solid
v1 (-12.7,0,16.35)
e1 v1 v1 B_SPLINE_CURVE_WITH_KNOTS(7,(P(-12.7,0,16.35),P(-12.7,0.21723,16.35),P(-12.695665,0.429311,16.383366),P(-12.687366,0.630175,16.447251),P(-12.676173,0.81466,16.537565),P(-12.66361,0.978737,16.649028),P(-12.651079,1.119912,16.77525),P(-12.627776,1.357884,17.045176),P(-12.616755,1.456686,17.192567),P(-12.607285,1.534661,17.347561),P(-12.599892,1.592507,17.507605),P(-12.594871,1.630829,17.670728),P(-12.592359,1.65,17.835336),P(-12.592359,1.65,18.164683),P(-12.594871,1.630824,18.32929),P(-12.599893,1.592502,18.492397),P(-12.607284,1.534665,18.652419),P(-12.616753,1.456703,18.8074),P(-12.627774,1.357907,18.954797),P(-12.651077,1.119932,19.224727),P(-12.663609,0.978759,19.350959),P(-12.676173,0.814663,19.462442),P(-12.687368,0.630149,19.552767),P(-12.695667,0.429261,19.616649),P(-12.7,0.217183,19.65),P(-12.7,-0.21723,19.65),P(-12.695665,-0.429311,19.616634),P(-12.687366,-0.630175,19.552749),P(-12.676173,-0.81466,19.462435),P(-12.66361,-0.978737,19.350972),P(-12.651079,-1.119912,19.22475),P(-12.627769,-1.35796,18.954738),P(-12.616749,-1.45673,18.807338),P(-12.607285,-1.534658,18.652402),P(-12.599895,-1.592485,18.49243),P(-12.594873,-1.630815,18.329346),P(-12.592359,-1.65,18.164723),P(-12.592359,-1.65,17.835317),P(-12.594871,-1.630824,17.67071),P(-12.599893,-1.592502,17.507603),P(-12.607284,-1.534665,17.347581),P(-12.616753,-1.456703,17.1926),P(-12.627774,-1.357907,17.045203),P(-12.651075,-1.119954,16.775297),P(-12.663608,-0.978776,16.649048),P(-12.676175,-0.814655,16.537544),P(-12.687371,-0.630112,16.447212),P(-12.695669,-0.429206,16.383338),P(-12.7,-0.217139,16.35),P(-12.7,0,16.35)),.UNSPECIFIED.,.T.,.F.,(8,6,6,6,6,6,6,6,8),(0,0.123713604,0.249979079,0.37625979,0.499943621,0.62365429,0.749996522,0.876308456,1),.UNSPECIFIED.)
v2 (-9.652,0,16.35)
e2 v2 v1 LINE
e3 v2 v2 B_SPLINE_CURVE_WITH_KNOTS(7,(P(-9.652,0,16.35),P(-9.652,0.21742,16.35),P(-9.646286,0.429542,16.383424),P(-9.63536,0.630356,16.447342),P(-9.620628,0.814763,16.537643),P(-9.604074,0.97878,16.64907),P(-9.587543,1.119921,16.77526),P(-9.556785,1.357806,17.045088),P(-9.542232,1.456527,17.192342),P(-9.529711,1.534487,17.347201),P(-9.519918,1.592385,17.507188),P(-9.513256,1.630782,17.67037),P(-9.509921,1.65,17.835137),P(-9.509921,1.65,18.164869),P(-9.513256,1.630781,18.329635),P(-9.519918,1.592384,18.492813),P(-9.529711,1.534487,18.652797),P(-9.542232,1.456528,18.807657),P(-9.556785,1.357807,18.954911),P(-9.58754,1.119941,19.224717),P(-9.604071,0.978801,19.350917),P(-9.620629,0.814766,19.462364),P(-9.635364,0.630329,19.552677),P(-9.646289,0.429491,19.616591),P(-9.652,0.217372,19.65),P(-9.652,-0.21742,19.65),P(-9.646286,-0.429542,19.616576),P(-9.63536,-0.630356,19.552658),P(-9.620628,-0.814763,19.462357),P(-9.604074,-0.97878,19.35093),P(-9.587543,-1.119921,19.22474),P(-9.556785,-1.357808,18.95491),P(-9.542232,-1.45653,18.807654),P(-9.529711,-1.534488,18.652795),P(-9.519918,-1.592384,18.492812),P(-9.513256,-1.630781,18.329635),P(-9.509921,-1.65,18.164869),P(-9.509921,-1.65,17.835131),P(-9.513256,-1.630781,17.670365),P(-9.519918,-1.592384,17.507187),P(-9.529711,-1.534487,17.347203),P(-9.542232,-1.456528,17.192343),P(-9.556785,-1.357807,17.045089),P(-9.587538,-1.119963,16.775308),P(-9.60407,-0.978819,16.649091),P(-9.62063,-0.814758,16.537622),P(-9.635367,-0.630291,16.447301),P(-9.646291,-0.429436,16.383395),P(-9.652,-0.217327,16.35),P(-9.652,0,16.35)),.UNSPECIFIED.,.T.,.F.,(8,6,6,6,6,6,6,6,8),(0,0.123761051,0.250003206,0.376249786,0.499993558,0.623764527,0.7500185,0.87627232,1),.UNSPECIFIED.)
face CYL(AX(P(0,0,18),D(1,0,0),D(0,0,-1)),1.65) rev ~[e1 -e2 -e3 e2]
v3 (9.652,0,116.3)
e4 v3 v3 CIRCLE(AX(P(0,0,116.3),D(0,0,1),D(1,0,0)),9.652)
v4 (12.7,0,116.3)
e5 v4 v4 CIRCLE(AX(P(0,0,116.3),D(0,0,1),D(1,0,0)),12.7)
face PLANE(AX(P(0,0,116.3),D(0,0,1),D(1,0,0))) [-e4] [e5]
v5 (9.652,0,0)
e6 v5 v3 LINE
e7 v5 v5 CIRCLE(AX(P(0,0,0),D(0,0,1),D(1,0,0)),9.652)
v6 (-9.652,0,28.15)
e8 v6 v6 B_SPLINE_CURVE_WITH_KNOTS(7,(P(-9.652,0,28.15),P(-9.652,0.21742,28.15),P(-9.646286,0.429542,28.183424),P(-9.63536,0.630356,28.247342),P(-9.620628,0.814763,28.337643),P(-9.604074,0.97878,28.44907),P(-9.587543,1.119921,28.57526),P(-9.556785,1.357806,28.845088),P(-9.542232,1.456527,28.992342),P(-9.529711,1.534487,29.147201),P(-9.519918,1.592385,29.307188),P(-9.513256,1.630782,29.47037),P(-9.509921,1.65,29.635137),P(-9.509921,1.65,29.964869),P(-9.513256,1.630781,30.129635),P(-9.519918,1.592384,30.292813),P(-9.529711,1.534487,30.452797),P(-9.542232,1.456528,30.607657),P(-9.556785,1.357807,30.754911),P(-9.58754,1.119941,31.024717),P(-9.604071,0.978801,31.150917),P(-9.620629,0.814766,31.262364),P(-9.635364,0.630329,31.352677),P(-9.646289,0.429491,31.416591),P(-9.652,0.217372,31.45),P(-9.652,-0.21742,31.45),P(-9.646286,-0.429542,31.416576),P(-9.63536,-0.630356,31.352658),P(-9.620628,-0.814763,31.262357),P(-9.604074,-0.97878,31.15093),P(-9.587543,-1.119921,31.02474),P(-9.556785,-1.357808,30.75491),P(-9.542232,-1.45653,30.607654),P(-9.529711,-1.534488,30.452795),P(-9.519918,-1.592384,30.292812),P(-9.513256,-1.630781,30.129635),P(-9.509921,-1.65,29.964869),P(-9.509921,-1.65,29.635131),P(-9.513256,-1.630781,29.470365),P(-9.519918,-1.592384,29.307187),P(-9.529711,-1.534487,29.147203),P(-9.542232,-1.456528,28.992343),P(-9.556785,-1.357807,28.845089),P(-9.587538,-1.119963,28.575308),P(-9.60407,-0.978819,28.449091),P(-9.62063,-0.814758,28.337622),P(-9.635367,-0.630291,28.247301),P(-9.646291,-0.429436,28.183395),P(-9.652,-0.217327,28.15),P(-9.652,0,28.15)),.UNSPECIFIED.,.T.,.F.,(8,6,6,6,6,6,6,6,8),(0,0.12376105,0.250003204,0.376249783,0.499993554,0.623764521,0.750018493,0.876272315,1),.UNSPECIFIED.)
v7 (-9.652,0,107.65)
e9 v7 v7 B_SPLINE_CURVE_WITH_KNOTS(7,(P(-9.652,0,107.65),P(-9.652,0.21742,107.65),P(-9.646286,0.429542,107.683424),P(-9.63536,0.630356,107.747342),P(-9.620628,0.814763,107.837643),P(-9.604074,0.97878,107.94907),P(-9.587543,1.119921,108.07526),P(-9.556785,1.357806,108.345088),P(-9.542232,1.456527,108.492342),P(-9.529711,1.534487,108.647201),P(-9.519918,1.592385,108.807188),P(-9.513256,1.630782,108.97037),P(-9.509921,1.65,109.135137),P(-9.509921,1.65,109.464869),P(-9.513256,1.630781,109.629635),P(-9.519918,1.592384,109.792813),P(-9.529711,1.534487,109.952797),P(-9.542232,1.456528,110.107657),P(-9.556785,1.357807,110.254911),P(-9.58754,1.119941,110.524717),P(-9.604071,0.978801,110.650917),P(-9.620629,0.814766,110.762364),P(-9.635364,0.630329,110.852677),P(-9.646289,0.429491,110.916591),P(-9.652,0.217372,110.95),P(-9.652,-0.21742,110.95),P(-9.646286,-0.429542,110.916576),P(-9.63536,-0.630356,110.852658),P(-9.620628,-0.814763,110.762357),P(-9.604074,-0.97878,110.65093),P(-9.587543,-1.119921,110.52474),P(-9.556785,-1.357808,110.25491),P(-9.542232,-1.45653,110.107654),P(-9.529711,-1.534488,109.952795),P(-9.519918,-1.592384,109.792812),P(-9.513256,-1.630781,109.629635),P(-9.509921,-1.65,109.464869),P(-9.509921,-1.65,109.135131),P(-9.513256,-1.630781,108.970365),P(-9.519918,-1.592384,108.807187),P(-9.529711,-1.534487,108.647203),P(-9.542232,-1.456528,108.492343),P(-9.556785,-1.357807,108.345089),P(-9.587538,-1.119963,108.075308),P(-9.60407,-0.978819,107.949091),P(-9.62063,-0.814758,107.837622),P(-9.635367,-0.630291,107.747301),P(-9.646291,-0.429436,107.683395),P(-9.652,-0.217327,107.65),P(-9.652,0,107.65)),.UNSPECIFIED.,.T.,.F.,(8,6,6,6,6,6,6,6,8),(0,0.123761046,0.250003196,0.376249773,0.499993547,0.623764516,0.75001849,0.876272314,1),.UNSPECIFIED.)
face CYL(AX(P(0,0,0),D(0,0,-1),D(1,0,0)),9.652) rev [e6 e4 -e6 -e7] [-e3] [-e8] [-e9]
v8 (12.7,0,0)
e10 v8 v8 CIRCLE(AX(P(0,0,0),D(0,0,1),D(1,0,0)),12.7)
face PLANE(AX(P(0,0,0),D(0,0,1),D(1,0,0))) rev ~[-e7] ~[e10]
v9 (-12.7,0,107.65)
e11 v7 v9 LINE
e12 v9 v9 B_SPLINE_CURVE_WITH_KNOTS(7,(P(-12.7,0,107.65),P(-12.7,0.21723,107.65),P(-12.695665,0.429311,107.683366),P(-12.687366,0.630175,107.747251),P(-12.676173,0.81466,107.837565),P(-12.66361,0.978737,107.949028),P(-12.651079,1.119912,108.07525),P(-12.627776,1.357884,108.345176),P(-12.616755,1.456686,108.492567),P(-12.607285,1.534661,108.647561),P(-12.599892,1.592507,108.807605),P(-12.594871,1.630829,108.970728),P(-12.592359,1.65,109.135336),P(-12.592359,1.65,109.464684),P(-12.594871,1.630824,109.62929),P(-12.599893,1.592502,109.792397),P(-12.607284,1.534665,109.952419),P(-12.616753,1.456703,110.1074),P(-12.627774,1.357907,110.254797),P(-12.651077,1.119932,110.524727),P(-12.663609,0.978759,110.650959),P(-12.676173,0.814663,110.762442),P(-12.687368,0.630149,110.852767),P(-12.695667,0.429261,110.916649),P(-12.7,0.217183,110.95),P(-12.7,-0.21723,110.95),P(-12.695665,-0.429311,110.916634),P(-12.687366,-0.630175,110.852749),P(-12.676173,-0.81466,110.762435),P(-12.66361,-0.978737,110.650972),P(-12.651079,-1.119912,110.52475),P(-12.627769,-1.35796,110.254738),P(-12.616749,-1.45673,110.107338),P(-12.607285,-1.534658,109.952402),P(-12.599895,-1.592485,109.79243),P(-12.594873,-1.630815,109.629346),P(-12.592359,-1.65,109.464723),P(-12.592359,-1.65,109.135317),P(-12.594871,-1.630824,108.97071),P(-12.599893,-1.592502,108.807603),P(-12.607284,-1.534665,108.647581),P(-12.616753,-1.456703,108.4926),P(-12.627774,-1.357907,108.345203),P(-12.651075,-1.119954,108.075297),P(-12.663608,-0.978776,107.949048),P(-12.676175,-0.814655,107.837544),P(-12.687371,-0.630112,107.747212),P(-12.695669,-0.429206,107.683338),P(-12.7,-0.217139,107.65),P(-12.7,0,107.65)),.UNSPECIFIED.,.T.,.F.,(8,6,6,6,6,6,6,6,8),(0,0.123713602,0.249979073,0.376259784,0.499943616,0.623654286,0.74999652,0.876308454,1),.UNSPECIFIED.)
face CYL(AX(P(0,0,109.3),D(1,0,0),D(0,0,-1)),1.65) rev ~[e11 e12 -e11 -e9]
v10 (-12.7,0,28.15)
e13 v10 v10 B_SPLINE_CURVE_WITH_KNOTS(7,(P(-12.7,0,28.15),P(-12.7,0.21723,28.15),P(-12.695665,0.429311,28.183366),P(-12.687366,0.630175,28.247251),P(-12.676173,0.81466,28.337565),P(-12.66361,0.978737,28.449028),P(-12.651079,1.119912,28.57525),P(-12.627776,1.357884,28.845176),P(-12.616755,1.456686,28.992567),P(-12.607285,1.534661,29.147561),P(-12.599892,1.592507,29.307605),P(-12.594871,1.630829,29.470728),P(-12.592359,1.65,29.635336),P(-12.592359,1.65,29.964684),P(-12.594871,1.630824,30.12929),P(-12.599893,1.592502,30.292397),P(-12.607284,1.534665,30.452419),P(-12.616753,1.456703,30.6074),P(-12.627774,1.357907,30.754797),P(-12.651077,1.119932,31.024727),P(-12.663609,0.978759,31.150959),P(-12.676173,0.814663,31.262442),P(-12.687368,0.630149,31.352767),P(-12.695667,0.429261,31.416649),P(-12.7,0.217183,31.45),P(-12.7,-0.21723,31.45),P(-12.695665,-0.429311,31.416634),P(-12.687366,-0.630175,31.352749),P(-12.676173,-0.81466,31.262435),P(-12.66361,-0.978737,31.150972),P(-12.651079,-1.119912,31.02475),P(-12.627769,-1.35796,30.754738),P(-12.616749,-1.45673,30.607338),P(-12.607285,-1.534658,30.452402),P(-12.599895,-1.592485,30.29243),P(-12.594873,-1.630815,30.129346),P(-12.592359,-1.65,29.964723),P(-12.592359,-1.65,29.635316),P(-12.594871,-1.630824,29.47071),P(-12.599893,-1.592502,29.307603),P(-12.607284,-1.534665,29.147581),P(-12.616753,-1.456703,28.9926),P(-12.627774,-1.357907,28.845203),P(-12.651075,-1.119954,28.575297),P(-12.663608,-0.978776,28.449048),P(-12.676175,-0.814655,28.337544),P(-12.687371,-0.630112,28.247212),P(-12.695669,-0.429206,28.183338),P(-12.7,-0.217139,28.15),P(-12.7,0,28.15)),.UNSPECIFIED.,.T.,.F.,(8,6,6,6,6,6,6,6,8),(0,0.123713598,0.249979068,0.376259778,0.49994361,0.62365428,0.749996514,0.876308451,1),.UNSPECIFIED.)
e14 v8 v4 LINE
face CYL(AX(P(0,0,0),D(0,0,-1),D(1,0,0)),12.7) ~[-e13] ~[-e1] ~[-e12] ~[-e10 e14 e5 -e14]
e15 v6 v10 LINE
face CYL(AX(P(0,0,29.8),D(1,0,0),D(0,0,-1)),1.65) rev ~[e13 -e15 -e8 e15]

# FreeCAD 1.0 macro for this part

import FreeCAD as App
import Part
import Sketcher

V = App.Vector
Q = App.Units.Quantity

doc = App.newDocument("Part")
params = doc.addObject("Spreadsheet::Sheet", "Params")
for row, (alias, value) in enumerate([
    ("sketch1_diameter", "25.4 mm"),
    ("pad1_length", "116.3 mm"),
    ("sketch2_diameter", "3.3 mm"),
    ("pocket1_length", "30 mm"),
], start=1):
    params.set(f"A{row}", alias)
    params.set(f"B{row}", "=" + value)
    params.setAlias(f"B{row}", alias)

body = doc.addObject("PartDesign::Body", "Body")

sketch1 = body.newObject("Sketcher::SketchObject", "Sketch")
sketch1.AttachmentSupport = (doc.getObject("XY_Plane"), [""])
sketch1.MapMode = "FlatFace"
sketch1.addGeometry([
    Part.Circle(V(0, 0, 0), V(0, 0, 1), 13),
    Part.Circle(V(0, 0, 0), V(0, 0, 1), 10),
], False)
sketch1.addConstraint([
    Sketcher.Constraint("Coincident", 0, 3, -1, 1),
    Sketcher.Constraint("Coincident", 1, 3, -1, 1),
    Sketcher.Constraint("Diameter", 0, Q("25.4 mm")),
    Sketcher.Constraint("Diameter", 1, Q("19.304 mm")),
])
sketch1.setExpression("Constraints[2]", "Params.sketch1_diameter")
pad1 = body.newObject("PartDesign::Pad", "Pad")
pad1.Profile = sketch1
pad1.setExpression("Length", "Params.pad1_length")

sketch2 = body.newObject("Sketcher::SketchObject", "Sketch001")
sketch2.AttachmentSupport = (doc.getObject("YZ_Plane"), [""])
sketch2.MapMode = "FlatFace"
sketch2.addGeometry([
    Part.Circle(V(0, 109.3, 0), V(0, 0, 1), 1.6),
    Part.Circle(V(0, 29.8, 0), V(0, 0, 1), 1.6),
    Part.Circle(V(0, 18, 0), V(0, 0, 1), 1.6),
], False)
sketch2.addConstraint([
    Sketcher.Constraint("Equal", 0, 1),
    Sketcher.Constraint("Equal", 1, 2),
    Sketcher.Constraint("PointOnObject", 0, 3, -2),
    Sketcher.Constraint("PointOnObject", 1, 3, -2),
    Sketcher.Constraint("PointOnObject", 2, 3, -2),
    Sketcher.Constraint("Diameter", 0, Q("3.3 mm")),
    Sketcher.Constraint("DistanceY", -1, 1, 2, 3, Q("18 mm")),
    Sketcher.Constraint("DistanceY", -1, 1, 0, 3, Q("109.3 mm")),
    Sketcher.Constraint("DistanceY", -1, 1, 1, 3, Q("29.8 mm")),
])
sketch2.setExpression("Constraints[5]", "Params.sketch2_diameter")
pocket1 = body.newObject("PartDesign::Pocket", "Pocket")
pocket1.Profile = sketch2
pocket1.setExpression("Length", "Params.pocket1_length")

doc.recompute()
